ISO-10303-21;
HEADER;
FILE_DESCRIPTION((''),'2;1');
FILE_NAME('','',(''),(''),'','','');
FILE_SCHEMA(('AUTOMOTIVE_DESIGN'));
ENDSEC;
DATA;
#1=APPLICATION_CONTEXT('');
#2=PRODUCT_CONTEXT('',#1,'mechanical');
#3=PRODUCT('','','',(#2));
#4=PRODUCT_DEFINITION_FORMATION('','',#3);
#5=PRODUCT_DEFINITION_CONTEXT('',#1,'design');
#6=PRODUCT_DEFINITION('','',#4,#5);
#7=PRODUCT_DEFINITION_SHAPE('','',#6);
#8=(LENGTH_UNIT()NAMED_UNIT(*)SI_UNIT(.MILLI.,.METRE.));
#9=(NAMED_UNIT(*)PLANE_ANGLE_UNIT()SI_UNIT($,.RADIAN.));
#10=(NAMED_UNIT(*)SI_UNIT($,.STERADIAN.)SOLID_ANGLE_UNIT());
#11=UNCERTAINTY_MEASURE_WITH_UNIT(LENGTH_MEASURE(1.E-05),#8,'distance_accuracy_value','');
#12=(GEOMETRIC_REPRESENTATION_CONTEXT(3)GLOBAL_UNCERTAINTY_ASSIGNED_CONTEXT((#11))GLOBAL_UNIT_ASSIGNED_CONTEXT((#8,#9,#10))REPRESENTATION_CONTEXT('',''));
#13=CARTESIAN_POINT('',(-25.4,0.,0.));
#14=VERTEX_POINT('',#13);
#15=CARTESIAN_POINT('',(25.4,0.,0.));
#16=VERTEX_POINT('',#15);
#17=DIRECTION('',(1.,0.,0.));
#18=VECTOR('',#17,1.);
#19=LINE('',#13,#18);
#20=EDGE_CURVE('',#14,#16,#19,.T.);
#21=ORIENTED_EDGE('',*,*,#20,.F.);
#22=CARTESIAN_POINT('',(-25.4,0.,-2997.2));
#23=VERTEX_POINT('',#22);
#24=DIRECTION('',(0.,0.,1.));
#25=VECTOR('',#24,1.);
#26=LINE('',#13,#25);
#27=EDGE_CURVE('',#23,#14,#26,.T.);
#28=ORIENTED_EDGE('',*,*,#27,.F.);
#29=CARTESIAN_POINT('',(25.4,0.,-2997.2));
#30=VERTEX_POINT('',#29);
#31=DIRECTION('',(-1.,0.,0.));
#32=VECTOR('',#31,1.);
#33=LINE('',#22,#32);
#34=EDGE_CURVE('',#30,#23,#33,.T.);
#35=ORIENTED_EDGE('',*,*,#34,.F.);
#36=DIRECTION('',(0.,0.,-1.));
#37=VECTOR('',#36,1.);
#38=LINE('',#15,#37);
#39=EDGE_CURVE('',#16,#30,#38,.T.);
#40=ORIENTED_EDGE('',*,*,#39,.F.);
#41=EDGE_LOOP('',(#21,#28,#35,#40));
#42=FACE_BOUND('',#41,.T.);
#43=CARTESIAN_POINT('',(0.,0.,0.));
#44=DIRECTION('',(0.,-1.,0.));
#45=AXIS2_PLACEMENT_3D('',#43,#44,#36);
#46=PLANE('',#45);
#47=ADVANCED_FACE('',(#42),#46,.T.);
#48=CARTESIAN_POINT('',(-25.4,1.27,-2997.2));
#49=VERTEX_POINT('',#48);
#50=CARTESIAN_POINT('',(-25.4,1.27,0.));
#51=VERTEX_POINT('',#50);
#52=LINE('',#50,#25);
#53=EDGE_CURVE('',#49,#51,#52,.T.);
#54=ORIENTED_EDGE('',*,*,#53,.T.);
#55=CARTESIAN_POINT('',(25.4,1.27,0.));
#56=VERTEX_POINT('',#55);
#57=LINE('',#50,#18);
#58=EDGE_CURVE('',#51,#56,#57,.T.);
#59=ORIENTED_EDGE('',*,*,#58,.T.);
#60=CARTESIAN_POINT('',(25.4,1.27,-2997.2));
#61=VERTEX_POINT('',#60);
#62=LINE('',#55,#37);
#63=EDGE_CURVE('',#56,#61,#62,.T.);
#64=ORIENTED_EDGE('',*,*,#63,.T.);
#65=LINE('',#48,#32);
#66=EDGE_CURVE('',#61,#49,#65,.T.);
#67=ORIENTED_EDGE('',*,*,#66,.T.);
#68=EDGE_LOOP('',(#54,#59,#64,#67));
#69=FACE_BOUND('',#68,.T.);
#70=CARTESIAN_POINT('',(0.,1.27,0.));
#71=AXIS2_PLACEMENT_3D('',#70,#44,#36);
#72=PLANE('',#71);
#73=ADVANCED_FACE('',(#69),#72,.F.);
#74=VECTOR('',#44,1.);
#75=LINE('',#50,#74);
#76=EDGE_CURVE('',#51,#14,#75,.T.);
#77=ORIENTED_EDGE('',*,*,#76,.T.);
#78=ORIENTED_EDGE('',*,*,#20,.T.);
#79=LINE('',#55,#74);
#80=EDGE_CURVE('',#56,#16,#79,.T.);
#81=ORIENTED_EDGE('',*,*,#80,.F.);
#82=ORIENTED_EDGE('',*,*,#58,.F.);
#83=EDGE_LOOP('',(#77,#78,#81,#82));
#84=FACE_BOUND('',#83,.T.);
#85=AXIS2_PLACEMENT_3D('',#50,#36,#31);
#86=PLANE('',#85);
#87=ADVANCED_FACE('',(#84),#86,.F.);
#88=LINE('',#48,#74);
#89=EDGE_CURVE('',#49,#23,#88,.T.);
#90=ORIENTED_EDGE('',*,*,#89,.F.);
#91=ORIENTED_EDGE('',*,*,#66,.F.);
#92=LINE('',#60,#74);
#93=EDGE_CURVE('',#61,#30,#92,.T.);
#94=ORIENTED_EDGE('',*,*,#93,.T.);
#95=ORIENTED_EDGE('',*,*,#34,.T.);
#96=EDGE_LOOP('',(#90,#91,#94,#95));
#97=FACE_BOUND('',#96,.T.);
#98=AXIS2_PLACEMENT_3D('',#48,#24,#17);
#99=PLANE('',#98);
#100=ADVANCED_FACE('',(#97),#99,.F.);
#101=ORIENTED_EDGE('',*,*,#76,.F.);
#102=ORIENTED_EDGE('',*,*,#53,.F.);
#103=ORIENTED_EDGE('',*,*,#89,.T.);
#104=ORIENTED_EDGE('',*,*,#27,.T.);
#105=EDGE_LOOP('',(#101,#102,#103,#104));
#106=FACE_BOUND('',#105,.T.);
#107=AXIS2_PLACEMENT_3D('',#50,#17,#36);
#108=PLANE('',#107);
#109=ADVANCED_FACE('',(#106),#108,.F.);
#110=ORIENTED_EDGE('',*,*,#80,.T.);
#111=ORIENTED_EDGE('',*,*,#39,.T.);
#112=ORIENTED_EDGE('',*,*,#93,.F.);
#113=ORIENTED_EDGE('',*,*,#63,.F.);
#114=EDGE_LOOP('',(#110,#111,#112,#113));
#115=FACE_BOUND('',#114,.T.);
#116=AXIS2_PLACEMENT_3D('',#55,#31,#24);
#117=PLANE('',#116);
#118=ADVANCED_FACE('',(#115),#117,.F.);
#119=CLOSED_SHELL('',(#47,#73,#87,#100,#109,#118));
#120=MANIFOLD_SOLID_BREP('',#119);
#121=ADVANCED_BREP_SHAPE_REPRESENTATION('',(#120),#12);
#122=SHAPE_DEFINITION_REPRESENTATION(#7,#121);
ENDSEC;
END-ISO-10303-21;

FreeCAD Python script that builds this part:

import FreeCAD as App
import Part
import Sketcher
from FreeCAD import Vector
Q = App.Units.Quantity


def add_polygon(sketch, points):
    """Adds a closed chain of lines whose ends are joined by coincident constraints."""
    first, n = sketch.GeometryCount, len(points)
    for a, b in zip(points, points[1:] + points[:1]):
        sketch.addGeometry(Part.LineSegment(App.Vector(*a, 0), App.Vector(*b, 0)), False)
    for i in range(n):
        sketch.addConstraint(Sketcher.Constraint("Coincident", first + i, 2, first + (i + 1) % n, 1))

doc = App.newDocument("Part")
body = doc.addObject("PartDesign::Body", "Body")

sketch1 = doc.addObject("Sketcher::SketchObject", "Sketch")
body.addObject(sketch1)
sketch1.AttachmentSupport = (doc.XZ_Plane, [""])
sketch1.MapMode = "FlatFace"
add_polygon(sketch1, [(-25.4, -2997.2), (-25.4, 0), (25.4, 0), (25.4, -2997.2)])
sketch1.addConstraint([
    Sketcher.Constraint("Vertical", 0),
    Sketcher.Constraint("Horizontal", 1),
    Sketcher.Constraint("Vertical", 2),
    Sketcher.Constraint("Horizontal", 3),
    Sketcher.Constraint("Symmetric", 0, 2, 1, 2, -1, 1),
    Sketcher.Constraint("DistanceX", 1, 1, 1, 2, Q("2 in")),
    Sketcher.Constraint("DistanceY", 0, 1, 0, 2, Q("118 in")),
])
pad1 = doc.addObject("PartDesign::Pad", "Pad")
body.addObject(pad1)
pad1.Profile = sketch1
pad1.Length = Q("0.05 in")
pad1.Reversed = True

doc.recompute()
